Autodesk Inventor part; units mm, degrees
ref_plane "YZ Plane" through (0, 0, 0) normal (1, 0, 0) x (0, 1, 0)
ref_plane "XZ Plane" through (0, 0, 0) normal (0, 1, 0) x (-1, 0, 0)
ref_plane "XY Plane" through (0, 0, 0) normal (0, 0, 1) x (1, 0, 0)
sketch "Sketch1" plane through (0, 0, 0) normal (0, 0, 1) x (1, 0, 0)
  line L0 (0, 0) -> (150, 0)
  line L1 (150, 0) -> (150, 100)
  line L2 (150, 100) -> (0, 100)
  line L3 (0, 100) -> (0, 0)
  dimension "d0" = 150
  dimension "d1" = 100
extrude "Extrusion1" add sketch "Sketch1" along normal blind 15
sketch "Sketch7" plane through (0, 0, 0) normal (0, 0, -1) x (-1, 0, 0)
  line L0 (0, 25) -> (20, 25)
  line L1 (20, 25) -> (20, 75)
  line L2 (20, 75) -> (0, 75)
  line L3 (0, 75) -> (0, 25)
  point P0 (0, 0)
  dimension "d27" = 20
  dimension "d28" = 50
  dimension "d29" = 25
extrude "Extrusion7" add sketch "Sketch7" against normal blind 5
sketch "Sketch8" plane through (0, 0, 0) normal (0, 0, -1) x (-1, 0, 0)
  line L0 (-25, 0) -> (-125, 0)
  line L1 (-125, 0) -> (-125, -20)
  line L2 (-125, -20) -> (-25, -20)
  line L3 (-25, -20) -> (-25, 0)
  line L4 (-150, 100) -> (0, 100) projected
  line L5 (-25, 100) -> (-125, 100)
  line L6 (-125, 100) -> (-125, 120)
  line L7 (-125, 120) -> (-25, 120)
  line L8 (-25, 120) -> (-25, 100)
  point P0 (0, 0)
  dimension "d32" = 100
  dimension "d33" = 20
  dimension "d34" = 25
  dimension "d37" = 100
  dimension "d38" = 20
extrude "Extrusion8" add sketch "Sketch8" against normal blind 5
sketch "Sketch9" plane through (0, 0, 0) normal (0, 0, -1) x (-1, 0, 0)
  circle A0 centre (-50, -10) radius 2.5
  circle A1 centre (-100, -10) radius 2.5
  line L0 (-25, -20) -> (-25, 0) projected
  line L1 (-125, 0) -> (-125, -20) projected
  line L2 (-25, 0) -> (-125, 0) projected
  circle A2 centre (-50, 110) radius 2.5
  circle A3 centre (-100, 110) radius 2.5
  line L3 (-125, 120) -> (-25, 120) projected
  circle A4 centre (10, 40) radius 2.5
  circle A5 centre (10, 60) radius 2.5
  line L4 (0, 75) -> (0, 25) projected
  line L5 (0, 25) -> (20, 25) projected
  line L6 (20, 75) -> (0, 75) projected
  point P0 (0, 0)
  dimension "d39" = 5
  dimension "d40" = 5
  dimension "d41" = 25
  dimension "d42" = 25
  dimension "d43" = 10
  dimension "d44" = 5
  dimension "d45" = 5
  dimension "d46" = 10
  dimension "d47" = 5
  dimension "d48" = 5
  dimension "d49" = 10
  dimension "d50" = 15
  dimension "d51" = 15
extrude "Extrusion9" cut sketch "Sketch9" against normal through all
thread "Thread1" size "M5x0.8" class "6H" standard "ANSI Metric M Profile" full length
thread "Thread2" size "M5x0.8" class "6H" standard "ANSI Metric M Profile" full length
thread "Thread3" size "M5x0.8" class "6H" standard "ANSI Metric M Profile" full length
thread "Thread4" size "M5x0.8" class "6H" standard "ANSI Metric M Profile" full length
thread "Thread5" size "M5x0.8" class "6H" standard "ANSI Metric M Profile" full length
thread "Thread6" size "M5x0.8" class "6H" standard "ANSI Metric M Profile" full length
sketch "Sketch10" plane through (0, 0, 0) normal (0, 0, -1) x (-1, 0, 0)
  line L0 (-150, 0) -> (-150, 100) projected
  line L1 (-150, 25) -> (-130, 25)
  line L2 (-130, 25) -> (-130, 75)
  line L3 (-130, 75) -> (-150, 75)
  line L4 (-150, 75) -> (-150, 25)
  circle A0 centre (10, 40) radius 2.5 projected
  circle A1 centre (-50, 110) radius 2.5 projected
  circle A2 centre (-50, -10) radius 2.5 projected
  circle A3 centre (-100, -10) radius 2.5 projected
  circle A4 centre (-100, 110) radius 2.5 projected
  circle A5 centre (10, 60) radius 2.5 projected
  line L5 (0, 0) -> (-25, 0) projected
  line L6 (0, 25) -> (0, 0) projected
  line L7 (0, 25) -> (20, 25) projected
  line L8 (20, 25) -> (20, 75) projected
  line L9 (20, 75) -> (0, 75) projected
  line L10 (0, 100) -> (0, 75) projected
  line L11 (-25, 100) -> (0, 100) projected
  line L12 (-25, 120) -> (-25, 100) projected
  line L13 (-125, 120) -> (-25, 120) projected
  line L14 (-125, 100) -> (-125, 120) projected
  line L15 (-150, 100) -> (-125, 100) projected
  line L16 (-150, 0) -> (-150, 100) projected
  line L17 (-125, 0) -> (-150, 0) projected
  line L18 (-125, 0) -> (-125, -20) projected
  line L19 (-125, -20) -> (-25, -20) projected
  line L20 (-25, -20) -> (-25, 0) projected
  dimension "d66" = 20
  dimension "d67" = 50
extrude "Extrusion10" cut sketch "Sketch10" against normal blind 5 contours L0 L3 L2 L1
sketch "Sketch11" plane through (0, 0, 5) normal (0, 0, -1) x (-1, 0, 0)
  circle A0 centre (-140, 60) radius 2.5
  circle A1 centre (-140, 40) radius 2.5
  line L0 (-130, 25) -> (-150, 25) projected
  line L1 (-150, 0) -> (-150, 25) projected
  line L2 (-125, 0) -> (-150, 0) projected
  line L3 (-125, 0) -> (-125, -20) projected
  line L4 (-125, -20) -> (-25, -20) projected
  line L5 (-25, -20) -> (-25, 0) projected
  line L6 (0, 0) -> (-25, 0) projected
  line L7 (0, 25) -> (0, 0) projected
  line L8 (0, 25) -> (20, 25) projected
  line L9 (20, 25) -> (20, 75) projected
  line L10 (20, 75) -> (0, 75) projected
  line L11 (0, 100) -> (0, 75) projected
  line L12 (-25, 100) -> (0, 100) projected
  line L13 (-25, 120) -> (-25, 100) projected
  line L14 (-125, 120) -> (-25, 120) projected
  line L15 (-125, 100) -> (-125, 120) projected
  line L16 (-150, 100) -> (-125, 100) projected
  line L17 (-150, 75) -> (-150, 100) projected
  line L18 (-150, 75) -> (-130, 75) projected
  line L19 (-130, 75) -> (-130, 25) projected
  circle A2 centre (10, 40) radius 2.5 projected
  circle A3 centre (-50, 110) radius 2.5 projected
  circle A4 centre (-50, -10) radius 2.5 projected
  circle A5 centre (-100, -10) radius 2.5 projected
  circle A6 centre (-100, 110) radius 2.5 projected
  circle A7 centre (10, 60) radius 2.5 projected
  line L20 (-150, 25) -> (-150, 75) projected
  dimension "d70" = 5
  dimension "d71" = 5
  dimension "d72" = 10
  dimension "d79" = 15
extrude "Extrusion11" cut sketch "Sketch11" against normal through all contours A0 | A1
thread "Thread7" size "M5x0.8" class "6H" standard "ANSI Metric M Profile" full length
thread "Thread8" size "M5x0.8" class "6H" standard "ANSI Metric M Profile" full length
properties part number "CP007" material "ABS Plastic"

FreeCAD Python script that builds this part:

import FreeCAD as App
import Part
import Sketcher

V = App.Vector

doc = App.newDocument("Part")
body = doc.addObject("PartDesign::Body", "Body")

sketch1 = body.newObject("Sketcher::SketchObject", "Sketch")
sketch1.AttachmentSupport = (doc.getObject("XY_Plane"), [""])
sketch1.MapMode = "FlatFace"
sketch1.addGeometry(Part.LineSegment(V(0, 100, 0), V(0, 0, 0)), False)
sketch1.addGeometry(Part.LineSegment(V(0, 0, 0), V(150, 0, 0)), False)
sketch1.addGeometry(Part.LineSegment(V(150, 0, 0), V(150, 100, 0)), False)
sketch1.addGeometry(Part.LineSegment(V(150, 100, 0), V(0, 100, 0)), False)
sketch1.addConstraint(Sketcher.Constraint("Coincident", 0, 2, 1, 1))
sketch1.addConstraint(Sketcher.Constraint("Coincident", 1, 2, 2, 1))
sketch1.addConstraint(Sketcher.Constraint("Coincident", 2, 2, 3, 1))
sketch1.addConstraint(Sketcher.Constraint("Coincident", 3, 2, 0, 1))
sketch1.addConstraint(Sketcher.Constraint("Vertical", 0))
sketch1.addConstraint(Sketcher.Constraint("Horizontal", 1))
sketch1.addConstraint(Sketcher.Constraint("Vertical", 2))
sketch1.addConstraint(Sketcher.Constraint("Horizontal", 3))
sketch1.addConstraint(Sketcher.Constraint("Coincident", 0, 2, -1, 1))
sketch1.addConstraint(Sketcher.Constraint("DistanceX", 1, 1, 1, 2, 150.0))
sketch1.addConstraint(Sketcher.Constraint("DistanceY", 0, 2, 0, 1, 100.0))
pad1 = body.newObject("PartDesign::Pad", "Pad")
pad1.Profile = sketch1
pad1.Length = 15

sketch2 = body.newObject("Sketcher::SketchObject", "Sketch001")
sketch2.AttachmentSupport = (doc.getObject("XY_Plane"), [""])
sketch2.MapMode = "FlatFace"
sketch2.addGeometry(Part.LineSegment(V(0, 75, 0), V(0, 25, 0)), False)
sketch2.addGeometry(Part.LineSegment(V(0, 25, 0), V(-20, 25, 0)), False)
sketch2.addGeometry(Part.LineSegment(V(-20, 25, 0), V(-20, 75, 0)), False)
sketch2.addGeometry(Part.LineSegment(V(-20, 75, 0), V(0, 75, 0)), False)
sketch2.addConstraint(Sketcher.Constraint("Coincident", 0, 2, 1, 1))
sketch2.addConstraint(Sketcher.Constraint("Coincident", 1, 2, 2, 1))
sketch2.addConstraint(Sketcher.Constraint("Coincident", 2, 2, 3, 1))
sketch2.addConstraint(Sketcher.Constraint("Coincident", 3, 2, 0, 1))
sketch2.addConstraint(Sketcher.Constraint("Vertical", 0))
sketch2.addConstraint(Sketcher.Constraint("Horizontal", 1))
sketch2.addConstraint(Sketcher.Constraint("Vertical", 2))
sketch2.addConstraint(Sketcher.Constraint("Horizontal", 3))
sketch2.addConstraint(Sketcher.Constraint("PointOnObject", 0, 2, -2))
sketch2.addConstraint(Sketcher.Constraint("DistanceX", 1, 2, 1, 1, 20.0))
sketch2.addConstraint(Sketcher.Constraint("DistanceY", 0, 2, 0, 1, 50.0))
sketch2.addConstraint(Sketcher.Constraint("DistanceY", -1, 1, 0, 2, 25.0))
pad2 = body.newObject("PartDesign::Pad", "Pad001")
pad2.Profile = sketch2
pad2.Length = 5

sketch3 = body.newObject("Sketcher::SketchObject", "Sketch002")
sketch3.AttachmentSupport = (doc.getObject("XY_Plane"), [""])
sketch3.MapMode = "FlatFace"
sketch3.addGeometry(Part.LineSegment(V(25, -20, 0), V(25, 0, 0)), False)
sketch3.addGeometry(Part.LineSegment(V(25, 0, 0), V(125, 0, 0)), False)
sketch3.addGeometry(Part.LineSegment(V(125, 0, 0), V(125, -20, 0)), False)
sketch3.addGeometry(Part.LineSegment(V(125, -20, 0), V(25, -20, 0)), False)
sketch3.addGeometry(Part.LineSegment(V(125, 120, 0), V(125, 100, 0)), False)
sketch3.addGeometry(Part.LineSegment(V(125, 100, 0), V(25, 100, 0)), False)
sketch3.addGeometry(Part.LineSegment(V(25, 100, 0), V(25, 120, 0)), False)
sketch3.addGeometry(Part.LineSegment(V(25, 120, 0), V(125, 120, 0)), False)
sketch3.addConstraint(Sketcher.Constraint("Coincident", 0, 2, 1, 1))
sketch3.addConstraint(Sketcher.Constraint("Coincident", 1, 2, 2, 1))
sketch3.addConstraint(Sketcher.Constraint("Coincident", 2, 2, 3, 1))
sketch3.addConstraint(Sketcher.Constraint("Coincident", 3, 2, 0, 1))
sketch3.addConstraint(Sketcher.Constraint("Coincident", 4, 2, 5, 1))
sketch3.addConstraint(Sketcher.Constraint("Coincident", 5, 2, 6, 1))
sketch3.addConstraint(Sketcher.Constraint("Coincident", 6, 2, 7, 1))
sketch3.addConstraint(Sketcher.Constraint("Coincident", 7, 2, 4, 1))
sketch3.addConstraint(Sketcher.Constraint("Vertical", 0))
sketch3.addConstraint(Sketcher.Constraint("Horizontal", 1))
sketch3.addConstraint(Sketcher.Constraint("Vertical", 2))
sketch3.addConstraint(Sketcher.Constraint("Horizontal", 3))
sketch3.addConstraint(Sketcher.Constraint("Vertical", 4))
sketch3.addConstraint(Sketcher.Constraint("Horizontal", 5))
sketch3.addConstraint(Sketcher.Constraint("Vertical", 6))
sketch3.addConstraint(Sketcher.Constraint("Horizontal", 7))
sketch3.addConstraint(Sketcher.Constraint("PointOnObject", 0, 2, -1))
sketch3.addConstraint(Sketcher.Constraint("Vertical", 2, 2, 4, 2))
sketch3.addConstraint(Sketcher.Constraint("Vertical", 3, 2, 5, 2))
sketch3.addConstraint(Sketcher.Constraint("Equal", 2, 4))
sketch3.addConstraint(Sketcher.Constraint("DistanceX", 1, 1, 1, 2, 100.0))
sketch3.addConstraint(Sketcher.Constraint("DistanceY", 0, 1, 0, 2, 20.0))
sketch3.addConstraint(Sketcher.Constraint("DistanceX", -1, 1, 0, 2, 25.0))
sketch3.addConstraint(Sketcher.Constraint("DistanceY", -1, 1, 4, 2, 100.0))
pad3 = body.newObject("PartDesign::Pad", "Pad002")
pad3.Profile = sketch3
pad3.Length = 5

sketch4 = body.newObject("Sketcher::SketchObject", "Sketch003")
sketch4.AttachmentSupport = (doc.getObject("XY_Plane"), [""])
sketch4.MapMode = "FlatFace"
sketch4.addGeometry(Part.Circle(V(50, -10, 0), V(0, 0, 1), 2.5), False)
sketch4.addGeometry(Part.Circle(V(100, -10, 0), V(0, 0, 1), 2.5), False)
sketch4.addGeometry(Part.Circle(V(50, 110, 0), V(0, 0, 1), 2.5), False)
sketch4.addGeometry(Part.Circle(V(100, 110, 0), V(0, 0, 1), 2.5), False)
sketch4.addGeometry(Part.Circle(V(-10, 40, 0), V(0, 0, 1), 2.5), False)
sketch4.addGeometry(Part.Circle(V(-10, 60, 0), V(0, 0, 1), 2.5), False)
sketch4.addConstraint(Sketcher.Constraint("Equal", 0, 1))
sketch4.addConstraint(Sketcher.Constraint("Equal", 1, 2))
sketch4.addConstraint(Sketcher.Constraint("Equal", 2, 3))
sketch4.addConstraint(Sketcher.Constraint("Equal", 3, 4))
sketch4.addConstraint(Sketcher.Constraint("Equal", 4, 5))
sketch4.addConstraint(Sketcher.Constraint("Horizontal", 0, 3, 1, 3))
sketch4.addConstraint(Sketcher.Constraint("Horizontal", 2, 3, 3, 3))
sketch4.addConstraint(Sketcher.Constraint("Vertical", 0, 3, 2, 3))
sketch4.addConstraint(Sketcher.Constraint("Vertical", 1, 3, 3, 3))
sketch4.addConstraint(Sketcher.Constraint("Vertical", 4, 3, 5, 3))
sketch4.addConstraint(Sketcher.Constraint("Diameter", 0, 5.0))
sketch4.addConstraint(Sketcher.Constraint("DistanceY", 0, 3, -1, 1, 10.0))
sketch4.addConstraint(Sketcher.Constraint("DistanceX", 4, 3, -1, 1, 10.0))
sketch4.addConstraint(Sketcher.Constraint("DistanceX", -1, 1, 0, 3, 50.0))
sketch4.addConstraint(Sketcher.Constraint("DistanceX", -1, 1, 1, 3, 100.0))
sketch4.addConstraint(Sketcher.Constraint("DistanceY", -1, 1, 2, 3, 110.0))
sketch4.addConstraint(Sketcher.Constraint("DistanceY", -1, 1, 4, 3, 40.0))
sketch4.addConstraint(Sketcher.Constraint("DistanceY", -1, 1, 5, 3, 60.0))
pocket1 = body.newObject("PartDesign::Pocket", "Pocket")
pocket1.Profile = sketch4
pocket1.Type = "ThroughAll"
pocket1.Reversed = True

sketch5 = body.newObject("Sketcher::SketchObject", "Sketch004")
sketch5.AttachmentSupport = (doc.getObject("XY_Plane"), [""])
sketch5.MapMode = "FlatFace"
sketch5.addGeometry(Part.LineSegment(V(150, 75, 0), V(150, 25, 0)), False)
sketch5.addGeometry(Part.LineSegment(V(150, 25, 0), V(130, 25, 0)), False)
sketch5.addGeometry(Part.LineSegment(V(130, 25, 0), V(130, 75, 0)), False)
sketch5.addGeometry(Part.LineSegment(V(130, 75, 0), V(150, 75, 0)), False)
sketch5.addConstraint(Sketcher.Constraint("Coincident", 0, 2, 1, 1))
sketch5.addConstraint(Sketcher.Constraint("Coincident", 1, 2, 2, 1))
sketch5.addConstraint(Sketcher.Constraint("Coincident", 2, 2, 3, 1))
sketch5.addConstraint(Sketcher.Constraint("Coincident", 3, 2, 0, 1))
sketch5.addConstraint(Sketcher.Constraint("Vertical", 0))
sketch5.addConstraint(Sketcher.Constraint("Horizontal", 1))
sketch5.addConstraint(Sketcher.Constraint("Vertical", 2))
sketch5.addConstraint(Sketcher.Constraint("Horizontal", 3))
sketch5.addConstraint(Sketcher.Constraint("DistanceX", 1, 2, 1, 1, 20.0))
sketch5.addConstraint(Sketcher.Constraint("DistanceY", 0, 2, 0, 1, 50.0))
sketch5.addConstraint(Sketcher.Constraint("DistanceX", -1, 1, 0, 2, 150.0))
sketch5.addConstraint(Sketcher.Constraint("DistanceY", -1, 1, 0, 2, 25.0))
pocket2 = body.newObject("PartDesign::Pocket", "Pocket001")
pocket2.Profile = sketch5
pocket2.Length = 5
pocket2.Reversed = True

sketch6 = body.newObject("Sketcher::SketchObject", "Sketch005")
sketch6.AttachmentSupport = (doc.getObject("XY_Plane"), [""])
sketch6.MapMode = "FlatFace"
sketch6.AttachmentOffset = App.Placement(V(0, 0, 5), App.Rotation())
sketch6.addGeometry(Part.Circle(V(140, 60, 0), V(0, 0, 1), 2.5), False)
sketch6.addGeometry(Part.Circle(V(140, 40, 0), V(0, 0, 1), 2.5), False)
sketch6.addConstraint(Sketcher.Constraint("Equal", 0, 1))
sketch6.addConstraint(Sketcher.Constraint("Vertical", 0, 3, 1, 3))
sketch6.addConstraint(Sketcher.Constraint("Diameter", 0, 5.0))
sketch6.addConstraint(Sketcher.Constraint("DistanceX", -1, 1, 0, 3, 140.0))
sketch6.addConstraint(Sketcher.Constraint("DistanceY", -1, 1, 0, 3, 60.0))
sketch6.addConstraint(Sketcher.Constraint("DistanceY", -1, 1, 1, 3, 40.0))
pocket3 = body.newObject("PartDesign::Pocket", "Pocket002")
pocket3.Profile = sketch6
pocket3.Type = "ThroughAll"
pocket3.Reversed = True

doc.recompute()
